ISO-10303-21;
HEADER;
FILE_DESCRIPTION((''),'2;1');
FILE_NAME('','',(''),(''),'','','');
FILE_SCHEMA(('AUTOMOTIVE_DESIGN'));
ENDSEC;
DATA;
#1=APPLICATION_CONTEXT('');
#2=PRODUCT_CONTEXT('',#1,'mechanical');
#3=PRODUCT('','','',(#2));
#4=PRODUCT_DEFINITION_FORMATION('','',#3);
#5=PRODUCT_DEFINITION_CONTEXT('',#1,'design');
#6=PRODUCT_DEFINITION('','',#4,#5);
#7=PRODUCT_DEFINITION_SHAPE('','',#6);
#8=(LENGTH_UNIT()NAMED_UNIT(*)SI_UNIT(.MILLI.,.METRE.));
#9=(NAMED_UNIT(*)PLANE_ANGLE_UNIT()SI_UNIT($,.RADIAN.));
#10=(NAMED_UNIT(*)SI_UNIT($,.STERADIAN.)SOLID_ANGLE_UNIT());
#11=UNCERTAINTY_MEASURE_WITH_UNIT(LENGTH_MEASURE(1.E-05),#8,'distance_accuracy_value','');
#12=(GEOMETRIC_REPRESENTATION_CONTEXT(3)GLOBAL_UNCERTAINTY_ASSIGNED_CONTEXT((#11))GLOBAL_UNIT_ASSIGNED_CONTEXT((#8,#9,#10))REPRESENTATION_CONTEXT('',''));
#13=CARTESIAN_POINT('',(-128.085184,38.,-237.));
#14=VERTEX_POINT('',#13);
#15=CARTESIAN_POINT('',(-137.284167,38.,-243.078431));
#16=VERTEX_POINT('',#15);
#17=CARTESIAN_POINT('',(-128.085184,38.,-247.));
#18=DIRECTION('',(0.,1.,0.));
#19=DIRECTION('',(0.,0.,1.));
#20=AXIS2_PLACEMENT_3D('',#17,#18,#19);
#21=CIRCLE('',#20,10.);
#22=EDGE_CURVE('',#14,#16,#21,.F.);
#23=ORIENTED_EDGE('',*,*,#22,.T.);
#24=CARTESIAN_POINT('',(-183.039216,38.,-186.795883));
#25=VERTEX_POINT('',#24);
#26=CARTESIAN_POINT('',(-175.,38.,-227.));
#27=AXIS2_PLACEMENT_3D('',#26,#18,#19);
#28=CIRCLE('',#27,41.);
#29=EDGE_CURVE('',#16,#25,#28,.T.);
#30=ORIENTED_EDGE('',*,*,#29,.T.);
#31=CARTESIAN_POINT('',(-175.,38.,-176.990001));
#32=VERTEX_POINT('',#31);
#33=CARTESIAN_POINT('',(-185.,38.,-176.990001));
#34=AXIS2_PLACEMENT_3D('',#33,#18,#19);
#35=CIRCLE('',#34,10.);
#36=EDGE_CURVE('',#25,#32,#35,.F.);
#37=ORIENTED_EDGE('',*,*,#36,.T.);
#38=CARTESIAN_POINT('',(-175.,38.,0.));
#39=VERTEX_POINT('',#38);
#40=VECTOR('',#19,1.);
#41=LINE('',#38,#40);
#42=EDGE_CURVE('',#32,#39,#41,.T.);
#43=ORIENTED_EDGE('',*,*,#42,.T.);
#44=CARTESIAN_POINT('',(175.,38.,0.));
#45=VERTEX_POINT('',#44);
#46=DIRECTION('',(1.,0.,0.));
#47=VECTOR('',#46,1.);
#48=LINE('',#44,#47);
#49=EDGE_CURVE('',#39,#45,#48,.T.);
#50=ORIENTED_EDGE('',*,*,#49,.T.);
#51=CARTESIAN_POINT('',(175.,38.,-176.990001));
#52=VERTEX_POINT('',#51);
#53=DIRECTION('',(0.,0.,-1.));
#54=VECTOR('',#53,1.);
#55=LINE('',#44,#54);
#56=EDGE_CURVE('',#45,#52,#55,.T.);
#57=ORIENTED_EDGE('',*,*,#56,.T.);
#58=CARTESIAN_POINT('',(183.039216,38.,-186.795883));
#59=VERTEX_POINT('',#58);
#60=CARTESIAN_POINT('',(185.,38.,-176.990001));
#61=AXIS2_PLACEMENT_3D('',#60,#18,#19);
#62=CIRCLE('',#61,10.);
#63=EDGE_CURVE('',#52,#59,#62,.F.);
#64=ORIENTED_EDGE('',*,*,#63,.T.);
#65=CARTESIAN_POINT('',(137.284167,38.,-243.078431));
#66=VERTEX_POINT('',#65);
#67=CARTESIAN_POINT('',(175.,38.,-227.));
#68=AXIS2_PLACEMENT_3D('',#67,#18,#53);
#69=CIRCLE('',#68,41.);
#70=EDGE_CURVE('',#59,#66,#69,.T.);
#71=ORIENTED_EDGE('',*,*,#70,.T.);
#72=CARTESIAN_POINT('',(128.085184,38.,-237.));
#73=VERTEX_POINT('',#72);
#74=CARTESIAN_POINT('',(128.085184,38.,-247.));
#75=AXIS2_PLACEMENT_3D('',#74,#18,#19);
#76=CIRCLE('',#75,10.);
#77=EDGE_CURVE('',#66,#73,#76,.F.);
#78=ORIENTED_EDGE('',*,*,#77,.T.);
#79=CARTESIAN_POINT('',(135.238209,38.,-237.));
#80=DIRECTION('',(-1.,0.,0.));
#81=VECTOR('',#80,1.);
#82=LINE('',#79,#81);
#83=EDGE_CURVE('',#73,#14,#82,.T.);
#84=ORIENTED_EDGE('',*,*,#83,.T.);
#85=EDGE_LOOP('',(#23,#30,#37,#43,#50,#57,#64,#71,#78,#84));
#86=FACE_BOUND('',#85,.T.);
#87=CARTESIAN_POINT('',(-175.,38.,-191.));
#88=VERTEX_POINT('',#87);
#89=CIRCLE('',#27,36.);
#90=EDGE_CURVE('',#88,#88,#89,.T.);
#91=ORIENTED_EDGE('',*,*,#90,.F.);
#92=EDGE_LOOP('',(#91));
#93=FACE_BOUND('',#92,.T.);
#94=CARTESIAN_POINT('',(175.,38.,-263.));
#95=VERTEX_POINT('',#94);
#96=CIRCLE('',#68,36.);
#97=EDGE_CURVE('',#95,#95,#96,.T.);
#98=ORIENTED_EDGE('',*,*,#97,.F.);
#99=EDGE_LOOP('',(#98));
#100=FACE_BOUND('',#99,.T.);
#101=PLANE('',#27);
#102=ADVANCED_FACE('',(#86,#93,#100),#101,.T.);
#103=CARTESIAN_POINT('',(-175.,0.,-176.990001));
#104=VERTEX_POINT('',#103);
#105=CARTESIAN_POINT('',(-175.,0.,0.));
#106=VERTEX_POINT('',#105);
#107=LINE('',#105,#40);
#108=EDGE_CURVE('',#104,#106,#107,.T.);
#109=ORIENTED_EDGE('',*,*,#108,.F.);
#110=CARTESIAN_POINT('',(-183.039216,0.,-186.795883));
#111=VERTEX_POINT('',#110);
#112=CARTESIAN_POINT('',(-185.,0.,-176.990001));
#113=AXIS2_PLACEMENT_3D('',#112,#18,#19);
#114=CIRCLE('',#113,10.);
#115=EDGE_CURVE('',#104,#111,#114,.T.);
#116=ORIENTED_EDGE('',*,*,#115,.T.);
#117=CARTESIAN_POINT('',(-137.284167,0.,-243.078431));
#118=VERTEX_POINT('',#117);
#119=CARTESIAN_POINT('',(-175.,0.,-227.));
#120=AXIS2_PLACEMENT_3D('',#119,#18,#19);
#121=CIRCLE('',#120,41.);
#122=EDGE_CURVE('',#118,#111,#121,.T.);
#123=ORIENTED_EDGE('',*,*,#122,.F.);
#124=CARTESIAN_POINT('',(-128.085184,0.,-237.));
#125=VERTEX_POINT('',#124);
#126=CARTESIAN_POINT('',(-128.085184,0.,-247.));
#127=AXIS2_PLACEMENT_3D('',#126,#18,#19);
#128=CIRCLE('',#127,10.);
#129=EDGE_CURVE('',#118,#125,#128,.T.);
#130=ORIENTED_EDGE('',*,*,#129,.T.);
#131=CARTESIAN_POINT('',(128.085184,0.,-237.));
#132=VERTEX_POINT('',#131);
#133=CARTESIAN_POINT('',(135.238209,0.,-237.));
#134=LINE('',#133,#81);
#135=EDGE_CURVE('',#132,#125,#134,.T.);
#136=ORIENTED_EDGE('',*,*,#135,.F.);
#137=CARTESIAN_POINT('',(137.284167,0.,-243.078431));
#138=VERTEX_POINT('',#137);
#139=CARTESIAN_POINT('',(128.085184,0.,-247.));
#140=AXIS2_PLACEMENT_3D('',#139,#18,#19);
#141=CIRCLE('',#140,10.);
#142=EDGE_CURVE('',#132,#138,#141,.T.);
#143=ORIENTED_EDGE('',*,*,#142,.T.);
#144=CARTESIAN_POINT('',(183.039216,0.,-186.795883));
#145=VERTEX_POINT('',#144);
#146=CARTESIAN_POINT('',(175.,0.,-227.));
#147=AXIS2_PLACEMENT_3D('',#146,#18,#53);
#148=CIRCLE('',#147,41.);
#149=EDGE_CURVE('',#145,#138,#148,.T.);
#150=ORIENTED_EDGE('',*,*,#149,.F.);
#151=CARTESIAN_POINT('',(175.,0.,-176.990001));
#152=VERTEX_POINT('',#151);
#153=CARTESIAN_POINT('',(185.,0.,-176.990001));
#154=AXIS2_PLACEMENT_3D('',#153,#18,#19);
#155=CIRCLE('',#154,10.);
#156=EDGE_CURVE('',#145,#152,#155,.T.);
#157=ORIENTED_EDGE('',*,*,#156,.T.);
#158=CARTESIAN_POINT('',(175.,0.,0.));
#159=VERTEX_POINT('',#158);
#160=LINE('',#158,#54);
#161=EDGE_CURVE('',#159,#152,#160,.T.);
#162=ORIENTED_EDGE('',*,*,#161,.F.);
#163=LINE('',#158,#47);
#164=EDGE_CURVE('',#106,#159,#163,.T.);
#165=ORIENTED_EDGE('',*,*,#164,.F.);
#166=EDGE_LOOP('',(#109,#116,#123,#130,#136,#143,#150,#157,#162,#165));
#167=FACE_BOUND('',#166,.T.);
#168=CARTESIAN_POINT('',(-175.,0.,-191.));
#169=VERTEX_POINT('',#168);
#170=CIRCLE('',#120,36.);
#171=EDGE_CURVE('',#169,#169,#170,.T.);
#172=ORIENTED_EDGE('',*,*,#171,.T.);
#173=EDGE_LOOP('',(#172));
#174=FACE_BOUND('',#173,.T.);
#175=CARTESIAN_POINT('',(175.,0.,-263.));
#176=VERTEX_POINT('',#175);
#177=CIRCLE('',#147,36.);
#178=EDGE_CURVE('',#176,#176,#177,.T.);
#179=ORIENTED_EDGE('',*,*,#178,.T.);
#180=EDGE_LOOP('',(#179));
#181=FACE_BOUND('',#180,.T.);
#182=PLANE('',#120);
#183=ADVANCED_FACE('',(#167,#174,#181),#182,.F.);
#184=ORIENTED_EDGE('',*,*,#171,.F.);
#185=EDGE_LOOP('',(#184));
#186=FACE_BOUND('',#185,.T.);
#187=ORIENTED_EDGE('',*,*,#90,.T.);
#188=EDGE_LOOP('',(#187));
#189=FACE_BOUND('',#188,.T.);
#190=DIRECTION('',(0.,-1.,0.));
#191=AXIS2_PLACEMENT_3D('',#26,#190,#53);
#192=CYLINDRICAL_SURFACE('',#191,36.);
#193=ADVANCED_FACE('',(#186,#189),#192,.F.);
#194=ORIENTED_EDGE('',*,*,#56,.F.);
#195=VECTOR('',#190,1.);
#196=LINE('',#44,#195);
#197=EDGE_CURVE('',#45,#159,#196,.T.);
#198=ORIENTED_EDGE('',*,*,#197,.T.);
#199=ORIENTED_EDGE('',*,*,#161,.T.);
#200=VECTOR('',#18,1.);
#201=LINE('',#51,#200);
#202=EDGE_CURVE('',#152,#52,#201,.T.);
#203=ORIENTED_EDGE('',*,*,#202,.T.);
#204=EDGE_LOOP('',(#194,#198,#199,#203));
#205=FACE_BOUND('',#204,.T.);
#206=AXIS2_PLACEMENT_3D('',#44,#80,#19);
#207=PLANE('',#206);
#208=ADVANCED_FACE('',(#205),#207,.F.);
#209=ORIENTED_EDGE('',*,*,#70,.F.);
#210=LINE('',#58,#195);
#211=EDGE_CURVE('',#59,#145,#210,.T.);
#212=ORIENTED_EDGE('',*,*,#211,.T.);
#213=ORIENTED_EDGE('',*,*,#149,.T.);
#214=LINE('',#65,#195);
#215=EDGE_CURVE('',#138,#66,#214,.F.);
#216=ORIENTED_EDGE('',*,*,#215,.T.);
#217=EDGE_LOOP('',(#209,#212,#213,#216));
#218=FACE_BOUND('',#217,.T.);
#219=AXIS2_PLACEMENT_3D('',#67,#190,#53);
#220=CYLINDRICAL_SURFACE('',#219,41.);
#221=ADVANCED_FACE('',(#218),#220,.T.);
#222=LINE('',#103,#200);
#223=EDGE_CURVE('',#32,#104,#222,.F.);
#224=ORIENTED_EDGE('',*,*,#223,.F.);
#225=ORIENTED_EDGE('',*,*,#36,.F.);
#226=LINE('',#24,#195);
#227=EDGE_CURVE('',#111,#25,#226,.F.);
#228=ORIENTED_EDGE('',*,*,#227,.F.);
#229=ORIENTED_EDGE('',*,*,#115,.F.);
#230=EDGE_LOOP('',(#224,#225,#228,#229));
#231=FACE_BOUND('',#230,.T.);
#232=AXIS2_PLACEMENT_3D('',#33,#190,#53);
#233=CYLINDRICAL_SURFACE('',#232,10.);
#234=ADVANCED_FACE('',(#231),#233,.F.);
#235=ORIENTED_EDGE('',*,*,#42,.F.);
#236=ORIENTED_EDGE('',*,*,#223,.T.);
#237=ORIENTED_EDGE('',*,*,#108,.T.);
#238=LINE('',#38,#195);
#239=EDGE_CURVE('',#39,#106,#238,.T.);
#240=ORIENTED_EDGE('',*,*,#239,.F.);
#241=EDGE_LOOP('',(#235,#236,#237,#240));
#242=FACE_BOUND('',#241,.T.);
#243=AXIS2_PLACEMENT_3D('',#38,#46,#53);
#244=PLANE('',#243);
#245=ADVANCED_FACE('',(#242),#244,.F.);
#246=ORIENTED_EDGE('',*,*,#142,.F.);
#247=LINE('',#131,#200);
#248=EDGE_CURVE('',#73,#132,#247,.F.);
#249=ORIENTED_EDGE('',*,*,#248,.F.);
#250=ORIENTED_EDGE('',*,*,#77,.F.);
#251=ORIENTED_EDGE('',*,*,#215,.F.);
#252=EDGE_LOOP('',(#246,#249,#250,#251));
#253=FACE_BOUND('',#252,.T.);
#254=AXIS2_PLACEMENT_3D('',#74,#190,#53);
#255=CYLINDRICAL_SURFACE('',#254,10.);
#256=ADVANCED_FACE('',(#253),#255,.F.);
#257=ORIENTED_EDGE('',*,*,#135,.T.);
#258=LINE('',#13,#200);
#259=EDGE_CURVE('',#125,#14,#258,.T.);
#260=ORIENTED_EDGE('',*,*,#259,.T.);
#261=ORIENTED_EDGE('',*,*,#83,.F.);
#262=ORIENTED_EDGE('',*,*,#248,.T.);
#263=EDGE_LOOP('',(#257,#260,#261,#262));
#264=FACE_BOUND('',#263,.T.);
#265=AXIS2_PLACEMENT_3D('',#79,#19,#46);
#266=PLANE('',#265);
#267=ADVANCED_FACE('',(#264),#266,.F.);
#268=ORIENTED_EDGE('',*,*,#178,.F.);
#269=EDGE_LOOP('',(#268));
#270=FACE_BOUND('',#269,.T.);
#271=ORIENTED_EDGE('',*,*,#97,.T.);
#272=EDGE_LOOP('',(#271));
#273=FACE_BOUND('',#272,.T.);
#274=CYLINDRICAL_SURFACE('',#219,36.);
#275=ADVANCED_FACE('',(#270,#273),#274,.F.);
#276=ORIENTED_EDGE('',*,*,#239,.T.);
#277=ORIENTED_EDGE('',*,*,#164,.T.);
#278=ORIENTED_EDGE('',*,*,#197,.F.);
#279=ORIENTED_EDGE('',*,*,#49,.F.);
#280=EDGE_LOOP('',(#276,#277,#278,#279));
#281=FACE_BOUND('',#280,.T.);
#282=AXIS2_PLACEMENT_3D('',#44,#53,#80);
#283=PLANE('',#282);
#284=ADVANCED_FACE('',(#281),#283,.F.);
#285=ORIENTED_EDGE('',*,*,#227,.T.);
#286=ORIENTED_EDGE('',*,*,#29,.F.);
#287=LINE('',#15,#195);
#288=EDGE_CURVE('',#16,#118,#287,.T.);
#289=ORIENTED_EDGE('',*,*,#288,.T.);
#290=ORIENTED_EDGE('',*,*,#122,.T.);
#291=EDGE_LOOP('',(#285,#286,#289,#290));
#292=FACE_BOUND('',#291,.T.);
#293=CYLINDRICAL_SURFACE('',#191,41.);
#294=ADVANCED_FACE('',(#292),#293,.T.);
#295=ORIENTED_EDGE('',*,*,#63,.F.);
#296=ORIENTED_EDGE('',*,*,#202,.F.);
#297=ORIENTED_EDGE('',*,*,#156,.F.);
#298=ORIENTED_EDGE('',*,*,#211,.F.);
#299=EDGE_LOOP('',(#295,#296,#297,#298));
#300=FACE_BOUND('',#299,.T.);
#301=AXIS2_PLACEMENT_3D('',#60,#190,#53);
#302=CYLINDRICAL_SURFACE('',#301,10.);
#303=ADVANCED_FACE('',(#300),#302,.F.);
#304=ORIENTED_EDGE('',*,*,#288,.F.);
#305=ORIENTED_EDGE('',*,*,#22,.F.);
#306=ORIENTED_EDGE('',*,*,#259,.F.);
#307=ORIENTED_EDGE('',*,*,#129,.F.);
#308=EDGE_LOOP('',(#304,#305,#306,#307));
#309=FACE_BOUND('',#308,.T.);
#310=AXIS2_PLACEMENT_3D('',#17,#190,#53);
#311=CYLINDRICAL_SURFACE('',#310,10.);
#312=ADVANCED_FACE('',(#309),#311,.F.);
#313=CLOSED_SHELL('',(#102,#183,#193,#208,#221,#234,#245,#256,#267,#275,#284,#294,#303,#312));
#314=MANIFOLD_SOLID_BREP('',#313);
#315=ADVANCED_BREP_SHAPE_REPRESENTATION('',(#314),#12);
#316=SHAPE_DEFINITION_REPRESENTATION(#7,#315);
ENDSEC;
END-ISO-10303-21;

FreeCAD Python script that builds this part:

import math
import FreeCAD as App
import Part
import Sketcher
Q = App.Units.Quantity


def edges_at(feature, points):
    """Names of the edges that pass closest to the given points."""
    edges = feature.Shape.Edges
    near = lambda p: min(range(len(edges)), key=lambda i: edges[i].distToShape(Part.Vertex(*p))[0])
    return sorted({f"Edge{near(p) + 1}" for p in points})

doc = App.newDocument("Part")
body = doc.addObject("PartDesign::Body", "Body")

# Sketch on XZ plane
sketch1 = body.newObject("Sketcher::SketchObject", "Sketch")
sketch1.AttachmentSupport = (doc.getObject("XZ_Plane"), [""])
sketch1.MapMode = "FlatFace"
sketch1.addGeometry(Part.LineSegment(App.Vector(-175, 0, 0), App.Vector(175, 0, 0)), False)
sketch1.addGeometry(Part.LineSegment(App.Vector(175, 0, 0), App.Vector(175, -186, 0)), False)
sketch1.addGeometry(Part.ArcOfCircle(Part.Circle(App.Vector(175, -227, 0), App.Vector(0, 0, 1), 41), math.radians(-165.883019), math.radians(90)), False)
sketch1.addGeometry(Part.LineSegment(App.Vector(135.238209, -237, 0), App.Vector(-135.238209, -237, 0)), False)
sketch1.addGeometry(Part.ArcOfCircle(Part.Circle(App.Vector(-175, -227, 0), App.Vector(0, 0, 1), 41), math.radians(90), math.radians(345.883019)), False)
sketch1.addGeometry(Part.LineSegment(App.Vector(-175, -186, 0), App.Vector(-175, 0, 0)), False)
sketch1.addGeometry(Part.Circle(App.Vector(175, -227, 0), App.Vector(0, 0, 1), 36), False)
sketch1.addGeometry(Part.Circle(App.Vector(-175, -227, 0), App.Vector(0, 0, 1), 36), False)
sketch1.addConstraint(Sketcher.Constraint("Coincident", 0, 2, 1, 1))
sketch1.addConstraint(Sketcher.Constraint("Coincident", 1, 2, 2, 2))
sketch1.addConstraint(Sketcher.Constraint("Coincident", 2, 1, 3, 1))
sketch1.addConstraint(Sketcher.Constraint("Coincident", 3, 2, 4, 2))
sketch1.addConstraint(Sketcher.Constraint("Coincident", 4, 1, 5, 1))
sketch1.addConstraint(Sketcher.Constraint("Coincident", 5, 2, 0, 1))
sketch1.addConstraint(Sketcher.Constraint("Horizontal", 0))
sketch1.addConstraint(Sketcher.Constraint("Vertical", 1))
sketch1.addConstraint(Sketcher.Constraint("Horizontal", 3))
sketch1.addConstraint(Sketcher.Constraint("Vertical", 5))
sketch1.addConstraint(Sketcher.Constraint("Coincident", 6, 3, 2, 3))
sketch1.addConstraint(Sketcher.Constraint("Coincident", 7, 3, 4, 3))
sketch1.addConstraint(Sketcher.Constraint("Equal", 2, 4))
sketch1.addConstraint(Sketcher.Constraint("Equal", 6, 7))
sketch1.addConstraint(Sketcher.Constraint("Symmetric", 0, 2, 5, 2, -1, 1))
sketch1.addConstraint(Sketcher.Constraint("Symmetric", 2, 3, 4, 3, -2))
sketch1.addConstraint(Sketcher.Constraint("Vertical", 6, 3, 0, 2))
sketch1.addConstraint(Sketcher.Constraint("Diameter", 6, Q("72 mm")))
sketch1.addConstraint(Sketcher.Constraint("Radius", 2, Q("41 mm")))
sketch1.addConstraint(Sketcher.Constraint("DistanceX", 0, 1, 0, 2, Q("350 mm")))
sketch1.addConstraint(Sketcher.Constraint("DistanceY", 1, 2, 1, 1, Q("186 mm")))
sketch1.addConstraint(Sketcher.Constraint("DistanceY", 2, 1, -1, 1, Q("237 mm")))
pad1 = body.newObject("PartDesign::Pad", "Pad")
pad1.Profile = sketch1
pad1.Length = 38
pad1.Reversed = True
doc.recompute()

fillet = body.newObject("PartDesign::Fillet", "Fillet")
fillet.Base = (pad1, edges_at(pad1, [
    (-175, 19, -186),
    (-135.238, 19, -237),
    (135.238, 19, -237),
    (175, 19, -186),
]))
fillet.Radius = 10

doc.recompute()
